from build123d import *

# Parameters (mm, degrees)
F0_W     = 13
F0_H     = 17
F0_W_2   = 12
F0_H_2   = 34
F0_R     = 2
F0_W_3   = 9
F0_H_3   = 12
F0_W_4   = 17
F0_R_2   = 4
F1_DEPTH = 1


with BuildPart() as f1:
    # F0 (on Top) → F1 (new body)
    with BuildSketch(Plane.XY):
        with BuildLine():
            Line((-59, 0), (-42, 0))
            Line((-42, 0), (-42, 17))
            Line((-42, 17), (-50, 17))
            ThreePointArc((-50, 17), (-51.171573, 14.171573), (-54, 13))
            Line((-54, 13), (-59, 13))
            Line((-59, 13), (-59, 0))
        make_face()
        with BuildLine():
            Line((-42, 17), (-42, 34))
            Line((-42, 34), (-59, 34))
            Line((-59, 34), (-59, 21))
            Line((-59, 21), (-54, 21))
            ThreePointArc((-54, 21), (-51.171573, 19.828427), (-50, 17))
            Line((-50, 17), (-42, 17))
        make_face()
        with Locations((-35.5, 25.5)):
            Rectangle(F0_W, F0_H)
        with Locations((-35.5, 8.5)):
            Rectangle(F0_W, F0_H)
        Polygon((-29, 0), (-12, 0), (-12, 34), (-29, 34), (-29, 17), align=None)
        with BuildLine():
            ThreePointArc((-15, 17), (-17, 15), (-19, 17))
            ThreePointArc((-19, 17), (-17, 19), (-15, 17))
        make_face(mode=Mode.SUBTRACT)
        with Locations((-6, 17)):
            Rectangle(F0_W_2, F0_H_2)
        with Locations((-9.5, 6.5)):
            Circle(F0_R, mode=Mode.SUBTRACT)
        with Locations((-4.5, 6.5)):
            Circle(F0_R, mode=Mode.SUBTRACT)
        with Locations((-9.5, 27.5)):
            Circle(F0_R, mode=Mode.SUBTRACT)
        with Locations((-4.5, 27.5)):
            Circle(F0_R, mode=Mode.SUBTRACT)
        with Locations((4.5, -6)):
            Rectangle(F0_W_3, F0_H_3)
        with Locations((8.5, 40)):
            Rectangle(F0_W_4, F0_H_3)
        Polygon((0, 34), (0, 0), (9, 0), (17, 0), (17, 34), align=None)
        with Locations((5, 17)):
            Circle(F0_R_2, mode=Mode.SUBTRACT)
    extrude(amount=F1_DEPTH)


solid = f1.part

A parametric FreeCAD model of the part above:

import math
import FreeCAD as App
import Part
import Sketcher

doc = App.newDocument("Part")
body = doc.addObject("PartDesign::Body", "Body")

sketch1 = doc.addObject("Sketcher::SketchObject", "Sketch")
body.addObject(sketch1)
sketch1.AttachmentSupport = (doc.XY_Plane, [""])
sketch1.MapMode = "FlatFace"
sketch1.addGeometry([
    Part.LineSegment(App.Vector(-59, 0, 0), App.Vector(0, 0, 0)),
    Part.LineSegment(App.Vector(0, 0, 0), App.Vector(0, -12, 0)),
    Part.LineSegment(App.Vector(0, -12, 0), App.Vector(9, -12, 0)),
    Part.LineSegment(App.Vector(9, -12, 0), App.Vector(9, 0, 0)),
    Part.LineSegment(App.Vector(9, 0, 0), App.Vector(17, 0, 0)),
    Part.LineSegment(App.Vector(17, 0, 0), App.Vector(17, 46, 0)),
    Part.LineSegment(App.Vector(17, 46, 0), App.Vector(0, 46, 0)),
    Part.LineSegment(App.Vector(0, 46, 0), App.Vector(0, 34, 0)),
    Part.LineSegment(App.Vector(0, 34, 0), App.Vector(-59, 34, 0)),
    Part.LineSegment(App.Vector(-59, 34, 0), App.Vector(-59, 21, 0)),
    Part.LineSegment(App.Vector(-59, 21, 0), App.Vector(-54, 21, 0)),
    Part.ArcOfCircle(Part.Circle(App.Vector(-54, 17, 0), App.Vector(0, 0, 1), 4), math.radians(0), math.radians(90)),
    Part.ArcOfCircle(Part.Circle(App.Vector(-54, 17, 0), App.Vector(0, 0, 1), 4), math.radians(-90), math.radians(0)),
    Part.LineSegment(App.Vector(-54, 13, 0), App.Vector(-59, 13, 0)),
    Part.LineSegment(App.Vector(-59, 13, 0), App.Vector(-59, 0, 0)),
    Part.Circle(App.Vector(-9.5, 6.5, 0), App.Vector(0, 0, 1), 2),
    Part.Circle(App.Vector(-4.5, 6.5, 0), App.Vector(0, 0, 1), 2),
    Part.Circle(App.Vector(-17, 17, 0), App.Vector(0, 0, 1), 2),
    Part.Circle(App.Vector(-9.5, 27.5, 0), App.Vector(0, 0, 1), 2),
    Part.Circle(App.Vector(5, 17, 0), App.Vector(0, 0, 1), 4),
    Part.Circle(App.Vector(-4.5, 27.5, 0), App.Vector(0, 0, 1), 2),
], False)
sketch1.addConstraint([
    Sketcher.Constraint("Coincident", 0, 2, 1, 1),
    Sketcher.Constraint("Coincident", 1, 2, 2, 1),
    Sketcher.Constraint("Coincident", 2, 2, 3, 1),
    Sketcher.Constraint("Coincident", 3, 2, 4, 1),
    Sketcher.Constraint("Coincident", 4, 2, 5, 1),
    Sketcher.Constraint("Coincident", 5, 2, 6, 1),
    Sketcher.Constraint("Coincident", 6, 2, 7, 1),
    Sketcher.Constraint("Coincident", 7, 2, 8, 1),
    Sketcher.Constraint("Coincident", 8, 2, 9, 1),
    Sketcher.Constraint("Coincident", 9, 2, 10, 1),
    Sketcher.Constraint("Tangent", 10, 2, 11, 2),
    Sketcher.Constraint("Tangent", 11, 1, 12, 2),
    Sketcher.Constraint("Tangent", 12, 1, 13, 1),
    Sketcher.Constraint("Coincident", 13, 2, 14, 1),
    Sketcher.Constraint("Coincident", 14, 2, 0, 1),
    Sketcher.Constraint("Horizontal", 0),
    Sketcher.Constraint("Vertical", 1),
    Sketcher.Constraint("Horizontal", 2),
    Sketcher.Constraint("Vertical", 3),
    Sketcher.Constraint("Horizontal", 4),
    Sketcher.Constraint("Vertical", 5),
    Sketcher.Constraint("Horizontal", 6),
    Sketcher.Constraint("Vertical", 7),
    Sketcher.Constraint("Horizontal", 8),
    Sketcher.Constraint("Vertical", 9),
    Sketcher.Constraint("Horizontal", 10),
    Sketcher.Constraint("Horizontal", 13),
    Sketcher.Constraint("Vertical", 14),
    Sketcher.Constraint("Coincident", 0, 2, -1, 1),
    Sketcher.Constraint("Equal", 11, 12),
    Sketcher.Constraint("Equal", 15, 16),
    Sketcher.Constraint("Equal", 16, 17),
    Sketcher.Constraint("Equal", 17, 18),
    Sketcher.Constraint("Equal", 12, 19),
    Sketcher.Constraint("Equal", 18, 20),
    Sketcher.Constraint("PointOnObject", 3, 2, -1),
    Sketcher.Constraint("PointOnObject", 6, 2, -2),
    Sketcher.Constraint("Horizontal", 15, 3, 16, 3),
    Sketcher.Constraint("Horizontal", 12, 3, 17, 3),
    Sketcher.Constraint("Horizontal", 17, 3, 19, 3),
    Sketcher.Constraint("Horizontal", 18, 3, 20, 3),
    Sketcher.Constraint("Horizontal", 19, 3, 11, 1),
    Sketcher.Constraint("Vertical", 15, 3, 18, 3),
    Sketcher.Constraint("Vertical", 16, 3, 20, 3),
    Sketcher.Constraint("Vertical", 9, 2, 13, 2),
    Sketcher.Constraint("Equal", 3, 7),
    Sketcher.Constraint("Equal", 9, 14),
    Sketcher.Constraint("Diameter", 15, 4.0),
    Sketcher.Constraint("Diameter", 19, 8.0),
    Sketcher.Constraint("DistanceX", 0, 1, 0, 2, 59.0),
    Sketcher.Constraint("DistanceX", 2, 1, 2, 2, 9.0),
    Sketcher.Constraint("DistanceX", 4, 1, 4, 2, 8.0),
    Sketcher.Constraint("DistanceX", 10, 1, 10, 2, 5.0),
    Sketcher.Constraint("DistanceY", 1, 2, 1, 1, 12.0),
    Sketcher.Constraint("DistanceY", 5, 1, 5, 2, 46.0),
    Sketcher.Constraint("DistanceX", 17, 3, -1, 1, 17.0),
    Sketcher.Constraint("DistanceX", -1, 1, 19, 3, 5.0),
    Sketcher.Constraint("DistanceX", 15, 3, 16, 3, 5.0),
    Sketcher.Constraint("DistanceY", 15, 3, 18, 3, 21.0),
    Sketcher.Constraint("DistanceX", 15, 3, -1, 1, 9.5),
    Sketcher.Constraint("DistanceY", -1, 1, 15, 3, 6.5),
])
pad1 = doc.addObject("PartDesign::Pad", "Pad")
body.addObject(pad1)
pad1.Profile = sketch1
pad1.Length = 1

doc.recompute()
